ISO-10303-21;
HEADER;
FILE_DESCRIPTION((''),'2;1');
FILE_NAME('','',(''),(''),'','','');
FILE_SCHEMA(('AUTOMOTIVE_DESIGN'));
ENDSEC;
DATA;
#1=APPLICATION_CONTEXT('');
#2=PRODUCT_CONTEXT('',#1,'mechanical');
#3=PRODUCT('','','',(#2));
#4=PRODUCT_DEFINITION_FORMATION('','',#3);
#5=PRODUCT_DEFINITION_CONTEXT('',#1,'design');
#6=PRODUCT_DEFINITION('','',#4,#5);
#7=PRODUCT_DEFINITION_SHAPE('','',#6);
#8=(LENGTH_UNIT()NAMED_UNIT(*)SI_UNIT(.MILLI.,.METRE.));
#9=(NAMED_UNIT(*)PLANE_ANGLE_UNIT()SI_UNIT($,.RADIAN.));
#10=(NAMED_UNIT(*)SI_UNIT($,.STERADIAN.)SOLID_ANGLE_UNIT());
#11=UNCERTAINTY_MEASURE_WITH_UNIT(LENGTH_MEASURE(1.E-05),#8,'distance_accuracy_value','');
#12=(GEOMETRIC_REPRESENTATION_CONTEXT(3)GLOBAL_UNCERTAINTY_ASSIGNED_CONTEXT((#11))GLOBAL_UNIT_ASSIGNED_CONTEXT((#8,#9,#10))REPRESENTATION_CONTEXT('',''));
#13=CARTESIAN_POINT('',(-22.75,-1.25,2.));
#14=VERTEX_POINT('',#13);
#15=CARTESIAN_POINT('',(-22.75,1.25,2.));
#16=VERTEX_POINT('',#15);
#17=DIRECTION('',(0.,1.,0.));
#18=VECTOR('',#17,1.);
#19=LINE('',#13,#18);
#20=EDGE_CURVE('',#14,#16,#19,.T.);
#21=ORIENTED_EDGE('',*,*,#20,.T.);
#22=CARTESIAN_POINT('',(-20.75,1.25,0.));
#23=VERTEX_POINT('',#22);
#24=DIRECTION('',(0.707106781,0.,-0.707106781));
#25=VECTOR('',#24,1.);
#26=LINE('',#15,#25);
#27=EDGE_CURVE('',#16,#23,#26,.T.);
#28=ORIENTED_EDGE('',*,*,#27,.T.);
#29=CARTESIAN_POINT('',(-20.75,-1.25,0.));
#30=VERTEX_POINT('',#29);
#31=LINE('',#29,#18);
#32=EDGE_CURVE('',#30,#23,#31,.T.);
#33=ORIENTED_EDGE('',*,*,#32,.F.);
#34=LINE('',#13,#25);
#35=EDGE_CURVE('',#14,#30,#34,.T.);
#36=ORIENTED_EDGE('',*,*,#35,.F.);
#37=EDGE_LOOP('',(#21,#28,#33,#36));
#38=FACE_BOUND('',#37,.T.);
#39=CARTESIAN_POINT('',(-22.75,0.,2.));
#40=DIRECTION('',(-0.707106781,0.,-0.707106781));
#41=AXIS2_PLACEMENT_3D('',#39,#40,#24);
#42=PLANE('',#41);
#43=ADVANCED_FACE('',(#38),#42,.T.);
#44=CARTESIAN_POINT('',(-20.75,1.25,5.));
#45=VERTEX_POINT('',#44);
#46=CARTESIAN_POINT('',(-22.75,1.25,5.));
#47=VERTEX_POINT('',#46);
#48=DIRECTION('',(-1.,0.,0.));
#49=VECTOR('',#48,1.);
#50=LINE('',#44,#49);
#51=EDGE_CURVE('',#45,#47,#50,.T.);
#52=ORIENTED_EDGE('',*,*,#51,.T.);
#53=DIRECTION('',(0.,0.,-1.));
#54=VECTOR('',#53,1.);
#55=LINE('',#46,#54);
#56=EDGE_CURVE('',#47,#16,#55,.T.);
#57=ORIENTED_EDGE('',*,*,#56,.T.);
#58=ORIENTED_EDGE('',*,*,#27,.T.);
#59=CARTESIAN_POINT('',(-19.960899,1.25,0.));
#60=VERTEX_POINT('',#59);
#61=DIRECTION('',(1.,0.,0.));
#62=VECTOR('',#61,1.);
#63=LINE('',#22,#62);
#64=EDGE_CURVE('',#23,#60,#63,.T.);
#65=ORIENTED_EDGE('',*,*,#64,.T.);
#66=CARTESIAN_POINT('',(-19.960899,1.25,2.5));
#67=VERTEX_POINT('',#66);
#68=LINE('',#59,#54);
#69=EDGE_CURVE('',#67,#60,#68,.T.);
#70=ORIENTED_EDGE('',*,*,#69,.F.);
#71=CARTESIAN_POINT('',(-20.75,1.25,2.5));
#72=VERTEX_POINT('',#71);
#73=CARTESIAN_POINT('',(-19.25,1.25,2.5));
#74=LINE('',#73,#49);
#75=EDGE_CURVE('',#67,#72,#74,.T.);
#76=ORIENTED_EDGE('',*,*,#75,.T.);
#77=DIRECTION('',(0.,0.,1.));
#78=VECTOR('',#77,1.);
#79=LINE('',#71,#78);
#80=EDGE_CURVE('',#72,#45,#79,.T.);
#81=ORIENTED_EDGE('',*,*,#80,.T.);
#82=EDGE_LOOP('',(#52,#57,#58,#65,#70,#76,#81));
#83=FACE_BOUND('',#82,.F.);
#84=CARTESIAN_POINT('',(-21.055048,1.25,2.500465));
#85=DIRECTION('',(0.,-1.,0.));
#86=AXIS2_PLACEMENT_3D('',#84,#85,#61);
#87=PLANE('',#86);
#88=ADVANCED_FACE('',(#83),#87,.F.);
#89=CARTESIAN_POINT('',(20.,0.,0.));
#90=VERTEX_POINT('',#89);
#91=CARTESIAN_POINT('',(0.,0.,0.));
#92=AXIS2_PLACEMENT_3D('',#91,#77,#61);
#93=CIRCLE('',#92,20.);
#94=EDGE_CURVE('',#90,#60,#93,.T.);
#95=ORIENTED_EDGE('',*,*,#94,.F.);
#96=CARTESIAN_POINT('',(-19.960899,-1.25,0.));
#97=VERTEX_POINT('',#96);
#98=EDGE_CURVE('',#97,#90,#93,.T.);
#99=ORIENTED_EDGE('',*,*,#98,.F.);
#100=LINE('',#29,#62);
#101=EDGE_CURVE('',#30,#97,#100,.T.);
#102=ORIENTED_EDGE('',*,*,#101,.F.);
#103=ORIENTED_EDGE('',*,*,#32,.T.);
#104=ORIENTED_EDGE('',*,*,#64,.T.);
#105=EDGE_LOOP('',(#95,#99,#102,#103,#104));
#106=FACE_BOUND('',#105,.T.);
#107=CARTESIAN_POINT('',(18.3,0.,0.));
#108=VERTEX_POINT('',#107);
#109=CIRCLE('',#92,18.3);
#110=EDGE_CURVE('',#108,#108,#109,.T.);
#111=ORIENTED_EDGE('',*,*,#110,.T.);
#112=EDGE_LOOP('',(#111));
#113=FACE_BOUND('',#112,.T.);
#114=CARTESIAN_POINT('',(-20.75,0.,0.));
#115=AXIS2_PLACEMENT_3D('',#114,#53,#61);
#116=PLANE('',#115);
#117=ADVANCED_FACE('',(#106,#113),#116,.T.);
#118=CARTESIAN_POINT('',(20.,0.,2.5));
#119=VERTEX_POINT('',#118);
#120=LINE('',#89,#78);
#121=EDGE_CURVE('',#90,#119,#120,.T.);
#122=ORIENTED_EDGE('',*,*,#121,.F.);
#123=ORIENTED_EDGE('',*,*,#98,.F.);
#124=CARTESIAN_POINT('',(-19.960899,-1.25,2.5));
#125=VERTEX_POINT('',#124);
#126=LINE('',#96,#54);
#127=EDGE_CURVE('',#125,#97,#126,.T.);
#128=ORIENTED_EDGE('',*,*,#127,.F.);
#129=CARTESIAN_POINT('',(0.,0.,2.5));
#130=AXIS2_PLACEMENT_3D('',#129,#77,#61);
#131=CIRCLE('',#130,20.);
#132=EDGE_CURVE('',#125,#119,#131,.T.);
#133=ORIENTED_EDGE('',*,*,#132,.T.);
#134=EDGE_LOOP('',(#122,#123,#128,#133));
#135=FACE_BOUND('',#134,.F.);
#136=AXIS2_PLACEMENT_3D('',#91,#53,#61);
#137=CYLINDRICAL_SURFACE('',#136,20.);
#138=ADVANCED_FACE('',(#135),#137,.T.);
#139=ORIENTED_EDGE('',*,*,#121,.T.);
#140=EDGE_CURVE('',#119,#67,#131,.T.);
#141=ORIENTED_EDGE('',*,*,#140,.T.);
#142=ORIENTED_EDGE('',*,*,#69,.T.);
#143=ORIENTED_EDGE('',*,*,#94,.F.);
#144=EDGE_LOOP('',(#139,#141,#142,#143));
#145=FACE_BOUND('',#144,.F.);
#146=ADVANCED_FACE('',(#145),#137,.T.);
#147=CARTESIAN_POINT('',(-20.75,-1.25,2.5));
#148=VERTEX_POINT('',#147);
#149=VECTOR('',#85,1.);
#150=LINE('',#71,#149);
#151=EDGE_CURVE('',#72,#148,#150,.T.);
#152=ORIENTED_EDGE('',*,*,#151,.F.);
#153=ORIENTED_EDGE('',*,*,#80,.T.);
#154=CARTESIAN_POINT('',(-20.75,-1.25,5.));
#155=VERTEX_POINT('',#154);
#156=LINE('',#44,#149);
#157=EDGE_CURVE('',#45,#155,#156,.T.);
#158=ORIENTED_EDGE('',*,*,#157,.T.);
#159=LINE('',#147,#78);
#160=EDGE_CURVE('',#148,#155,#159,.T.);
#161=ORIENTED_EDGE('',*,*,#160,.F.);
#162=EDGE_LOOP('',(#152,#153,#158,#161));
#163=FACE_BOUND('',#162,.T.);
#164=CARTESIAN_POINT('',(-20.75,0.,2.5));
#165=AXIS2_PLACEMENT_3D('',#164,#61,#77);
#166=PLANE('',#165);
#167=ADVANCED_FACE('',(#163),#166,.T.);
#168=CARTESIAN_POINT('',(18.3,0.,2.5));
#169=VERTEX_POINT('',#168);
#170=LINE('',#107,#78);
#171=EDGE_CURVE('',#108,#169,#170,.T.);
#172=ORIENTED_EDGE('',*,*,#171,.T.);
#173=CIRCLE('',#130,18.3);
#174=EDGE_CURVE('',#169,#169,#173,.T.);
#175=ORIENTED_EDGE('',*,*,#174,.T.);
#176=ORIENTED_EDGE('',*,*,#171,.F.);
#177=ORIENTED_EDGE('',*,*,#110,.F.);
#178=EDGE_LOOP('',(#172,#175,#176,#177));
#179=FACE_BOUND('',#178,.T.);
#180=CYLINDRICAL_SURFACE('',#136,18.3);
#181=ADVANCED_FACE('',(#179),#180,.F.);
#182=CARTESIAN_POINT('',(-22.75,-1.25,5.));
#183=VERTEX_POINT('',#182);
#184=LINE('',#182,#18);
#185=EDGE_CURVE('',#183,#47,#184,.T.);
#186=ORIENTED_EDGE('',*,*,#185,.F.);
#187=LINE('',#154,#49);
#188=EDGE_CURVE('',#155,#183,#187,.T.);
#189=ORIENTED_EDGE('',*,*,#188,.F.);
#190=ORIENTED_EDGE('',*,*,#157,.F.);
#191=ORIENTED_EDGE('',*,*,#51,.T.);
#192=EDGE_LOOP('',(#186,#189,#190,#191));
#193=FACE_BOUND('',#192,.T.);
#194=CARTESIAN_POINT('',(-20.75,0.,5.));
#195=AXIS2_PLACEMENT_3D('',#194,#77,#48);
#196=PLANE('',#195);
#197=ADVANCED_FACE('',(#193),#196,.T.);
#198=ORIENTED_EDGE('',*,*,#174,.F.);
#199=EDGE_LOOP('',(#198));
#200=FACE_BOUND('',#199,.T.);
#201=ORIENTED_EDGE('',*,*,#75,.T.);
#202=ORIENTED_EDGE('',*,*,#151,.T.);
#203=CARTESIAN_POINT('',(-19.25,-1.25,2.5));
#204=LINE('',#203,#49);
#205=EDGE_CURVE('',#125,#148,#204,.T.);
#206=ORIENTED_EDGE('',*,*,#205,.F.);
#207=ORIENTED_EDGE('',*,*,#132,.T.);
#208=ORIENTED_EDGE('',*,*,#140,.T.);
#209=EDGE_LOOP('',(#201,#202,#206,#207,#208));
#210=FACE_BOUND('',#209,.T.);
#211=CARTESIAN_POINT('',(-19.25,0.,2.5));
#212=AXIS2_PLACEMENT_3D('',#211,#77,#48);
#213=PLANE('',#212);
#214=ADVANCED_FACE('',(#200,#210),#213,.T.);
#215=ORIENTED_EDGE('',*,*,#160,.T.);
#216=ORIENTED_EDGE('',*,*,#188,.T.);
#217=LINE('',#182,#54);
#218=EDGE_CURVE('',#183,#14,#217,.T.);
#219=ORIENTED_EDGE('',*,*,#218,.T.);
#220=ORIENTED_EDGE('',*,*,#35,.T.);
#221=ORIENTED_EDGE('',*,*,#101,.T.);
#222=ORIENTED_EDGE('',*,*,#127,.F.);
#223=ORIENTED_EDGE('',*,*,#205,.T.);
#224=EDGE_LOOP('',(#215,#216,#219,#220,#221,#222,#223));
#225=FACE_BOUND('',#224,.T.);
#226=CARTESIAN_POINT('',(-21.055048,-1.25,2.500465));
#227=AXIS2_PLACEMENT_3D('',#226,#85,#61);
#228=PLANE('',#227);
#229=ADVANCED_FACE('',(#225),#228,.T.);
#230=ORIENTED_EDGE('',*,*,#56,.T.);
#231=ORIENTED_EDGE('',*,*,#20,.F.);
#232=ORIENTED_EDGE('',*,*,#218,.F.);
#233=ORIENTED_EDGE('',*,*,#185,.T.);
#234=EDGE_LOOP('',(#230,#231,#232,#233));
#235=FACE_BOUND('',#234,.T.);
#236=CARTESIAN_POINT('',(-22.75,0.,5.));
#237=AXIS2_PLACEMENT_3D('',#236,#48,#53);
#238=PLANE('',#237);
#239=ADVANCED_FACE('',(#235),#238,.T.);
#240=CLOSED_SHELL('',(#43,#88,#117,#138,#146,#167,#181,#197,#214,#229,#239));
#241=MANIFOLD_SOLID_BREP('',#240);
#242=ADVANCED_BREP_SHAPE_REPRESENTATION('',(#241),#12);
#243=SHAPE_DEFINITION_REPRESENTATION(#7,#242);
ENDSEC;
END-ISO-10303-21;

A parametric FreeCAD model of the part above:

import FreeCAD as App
import Part
import Sketcher
from FreeCAD import Vector
Q = App.Units.Quantity


def add_polygon(sketch, points):
    """Adds a closed chain of lines whose ends are joined by coincident constraints."""
    first, n = sketch.GeometryCount, len(points)
    for a, b in zip(points, points[1:] + points[:1]):
        sketch.addGeometry(Part.LineSegment(App.Vector(*a, 0), App.Vector(*b, 0)), False)
    for i in range(n):
        sketch.addConstraint(Sketcher.Constraint("Coincident", first + i, 2, first + (i + 1) % n, 1))

doc = App.newDocument("Part")
body = doc.addObject("PartDesign::Body", "Body")

sketch1 = body.newObject("Sketcher::SketchObject", "Sketch")
sketch1.AttachmentSupport = (doc.getObject("XY_Plane"), [""])
sketch1.MapMode = "FlatFace"
sketch1.addGeometry([
    Part.Circle(Vector(0, 0, 0), Vector(0, 0, 1), 20),
    Part.Circle(Vector(0, 0, 0), Vector(0, 0, 1), 18),
], False)
sketch1.addConstraint([
    Sketcher.Constraint("Coincident", 0, 3, -1, 1),
    Sketcher.Constraint("Coincident", 1, 3, -1, 1),
    Sketcher.Constraint("Diameter", 0, Q("40 mm")),
    Sketcher.Constraint("Diameter", 1, Q("36.6 mm")),
])
pad1 = body.newObject("PartDesign::Pad", "Pad")
pad1.Profile = sketch1
pad1.Length = 2.5

sketch2 = body.newObject("Sketcher::SketchObject", "Sketch001")
sketch2.AttachmentSupport = (doc.getObject("XZ_Plane"), [""])
sketch2.MapMode = "FlatFace"
add_polygon(sketch2, [(-20.8, 0), (-19.2, 0), (-19.2, 2.5), (-20.8, 2.5), (-20.8, 5), (-22.8, 5), (-22.8, 2)])
sketch2.addConstraint([
    Sketcher.Constraint("Horizontal", 0),
    Sketcher.Constraint("Vertical", 1),
    Sketcher.Constraint("Horizontal", 2),
    Sketcher.Constraint("Vertical", 3),
    Sketcher.Constraint("Horizontal", 4),
    Sketcher.Constraint("Vertical", 5),
    Sketcher.Constraint("PointOnObject", 0, 2, -1),
    Sketcher.Constraint("Vertical", 3, 2, 6, 2),
    Sketcher.Constraint("Equal", 1, 3),
    Sketcher.Constraint("DistanceX", 4, 2, 4, 1, Q("2 mm")),
    Sketcher.Constraint("DistanceY", 5, 2, 5, 1, Q("3 mm")),
    Sketcher.Constraint("Angle", 6, Q("-45 deg")),
    Sketcher.Constraint("DistanceX", 0, 1, 0, 2, Q("1.5 mm")),
    Sketcher.Constraint("DistanceX", 0, 2, -1, 1, Q("19.25 mm")),
])
pad2 = body.newObject("PartDesign::Pad", "Pad001")
pad2.Profile = sketch2
pad2.Length = 2.5
pad2.Midplane = True

doc.recompute()
